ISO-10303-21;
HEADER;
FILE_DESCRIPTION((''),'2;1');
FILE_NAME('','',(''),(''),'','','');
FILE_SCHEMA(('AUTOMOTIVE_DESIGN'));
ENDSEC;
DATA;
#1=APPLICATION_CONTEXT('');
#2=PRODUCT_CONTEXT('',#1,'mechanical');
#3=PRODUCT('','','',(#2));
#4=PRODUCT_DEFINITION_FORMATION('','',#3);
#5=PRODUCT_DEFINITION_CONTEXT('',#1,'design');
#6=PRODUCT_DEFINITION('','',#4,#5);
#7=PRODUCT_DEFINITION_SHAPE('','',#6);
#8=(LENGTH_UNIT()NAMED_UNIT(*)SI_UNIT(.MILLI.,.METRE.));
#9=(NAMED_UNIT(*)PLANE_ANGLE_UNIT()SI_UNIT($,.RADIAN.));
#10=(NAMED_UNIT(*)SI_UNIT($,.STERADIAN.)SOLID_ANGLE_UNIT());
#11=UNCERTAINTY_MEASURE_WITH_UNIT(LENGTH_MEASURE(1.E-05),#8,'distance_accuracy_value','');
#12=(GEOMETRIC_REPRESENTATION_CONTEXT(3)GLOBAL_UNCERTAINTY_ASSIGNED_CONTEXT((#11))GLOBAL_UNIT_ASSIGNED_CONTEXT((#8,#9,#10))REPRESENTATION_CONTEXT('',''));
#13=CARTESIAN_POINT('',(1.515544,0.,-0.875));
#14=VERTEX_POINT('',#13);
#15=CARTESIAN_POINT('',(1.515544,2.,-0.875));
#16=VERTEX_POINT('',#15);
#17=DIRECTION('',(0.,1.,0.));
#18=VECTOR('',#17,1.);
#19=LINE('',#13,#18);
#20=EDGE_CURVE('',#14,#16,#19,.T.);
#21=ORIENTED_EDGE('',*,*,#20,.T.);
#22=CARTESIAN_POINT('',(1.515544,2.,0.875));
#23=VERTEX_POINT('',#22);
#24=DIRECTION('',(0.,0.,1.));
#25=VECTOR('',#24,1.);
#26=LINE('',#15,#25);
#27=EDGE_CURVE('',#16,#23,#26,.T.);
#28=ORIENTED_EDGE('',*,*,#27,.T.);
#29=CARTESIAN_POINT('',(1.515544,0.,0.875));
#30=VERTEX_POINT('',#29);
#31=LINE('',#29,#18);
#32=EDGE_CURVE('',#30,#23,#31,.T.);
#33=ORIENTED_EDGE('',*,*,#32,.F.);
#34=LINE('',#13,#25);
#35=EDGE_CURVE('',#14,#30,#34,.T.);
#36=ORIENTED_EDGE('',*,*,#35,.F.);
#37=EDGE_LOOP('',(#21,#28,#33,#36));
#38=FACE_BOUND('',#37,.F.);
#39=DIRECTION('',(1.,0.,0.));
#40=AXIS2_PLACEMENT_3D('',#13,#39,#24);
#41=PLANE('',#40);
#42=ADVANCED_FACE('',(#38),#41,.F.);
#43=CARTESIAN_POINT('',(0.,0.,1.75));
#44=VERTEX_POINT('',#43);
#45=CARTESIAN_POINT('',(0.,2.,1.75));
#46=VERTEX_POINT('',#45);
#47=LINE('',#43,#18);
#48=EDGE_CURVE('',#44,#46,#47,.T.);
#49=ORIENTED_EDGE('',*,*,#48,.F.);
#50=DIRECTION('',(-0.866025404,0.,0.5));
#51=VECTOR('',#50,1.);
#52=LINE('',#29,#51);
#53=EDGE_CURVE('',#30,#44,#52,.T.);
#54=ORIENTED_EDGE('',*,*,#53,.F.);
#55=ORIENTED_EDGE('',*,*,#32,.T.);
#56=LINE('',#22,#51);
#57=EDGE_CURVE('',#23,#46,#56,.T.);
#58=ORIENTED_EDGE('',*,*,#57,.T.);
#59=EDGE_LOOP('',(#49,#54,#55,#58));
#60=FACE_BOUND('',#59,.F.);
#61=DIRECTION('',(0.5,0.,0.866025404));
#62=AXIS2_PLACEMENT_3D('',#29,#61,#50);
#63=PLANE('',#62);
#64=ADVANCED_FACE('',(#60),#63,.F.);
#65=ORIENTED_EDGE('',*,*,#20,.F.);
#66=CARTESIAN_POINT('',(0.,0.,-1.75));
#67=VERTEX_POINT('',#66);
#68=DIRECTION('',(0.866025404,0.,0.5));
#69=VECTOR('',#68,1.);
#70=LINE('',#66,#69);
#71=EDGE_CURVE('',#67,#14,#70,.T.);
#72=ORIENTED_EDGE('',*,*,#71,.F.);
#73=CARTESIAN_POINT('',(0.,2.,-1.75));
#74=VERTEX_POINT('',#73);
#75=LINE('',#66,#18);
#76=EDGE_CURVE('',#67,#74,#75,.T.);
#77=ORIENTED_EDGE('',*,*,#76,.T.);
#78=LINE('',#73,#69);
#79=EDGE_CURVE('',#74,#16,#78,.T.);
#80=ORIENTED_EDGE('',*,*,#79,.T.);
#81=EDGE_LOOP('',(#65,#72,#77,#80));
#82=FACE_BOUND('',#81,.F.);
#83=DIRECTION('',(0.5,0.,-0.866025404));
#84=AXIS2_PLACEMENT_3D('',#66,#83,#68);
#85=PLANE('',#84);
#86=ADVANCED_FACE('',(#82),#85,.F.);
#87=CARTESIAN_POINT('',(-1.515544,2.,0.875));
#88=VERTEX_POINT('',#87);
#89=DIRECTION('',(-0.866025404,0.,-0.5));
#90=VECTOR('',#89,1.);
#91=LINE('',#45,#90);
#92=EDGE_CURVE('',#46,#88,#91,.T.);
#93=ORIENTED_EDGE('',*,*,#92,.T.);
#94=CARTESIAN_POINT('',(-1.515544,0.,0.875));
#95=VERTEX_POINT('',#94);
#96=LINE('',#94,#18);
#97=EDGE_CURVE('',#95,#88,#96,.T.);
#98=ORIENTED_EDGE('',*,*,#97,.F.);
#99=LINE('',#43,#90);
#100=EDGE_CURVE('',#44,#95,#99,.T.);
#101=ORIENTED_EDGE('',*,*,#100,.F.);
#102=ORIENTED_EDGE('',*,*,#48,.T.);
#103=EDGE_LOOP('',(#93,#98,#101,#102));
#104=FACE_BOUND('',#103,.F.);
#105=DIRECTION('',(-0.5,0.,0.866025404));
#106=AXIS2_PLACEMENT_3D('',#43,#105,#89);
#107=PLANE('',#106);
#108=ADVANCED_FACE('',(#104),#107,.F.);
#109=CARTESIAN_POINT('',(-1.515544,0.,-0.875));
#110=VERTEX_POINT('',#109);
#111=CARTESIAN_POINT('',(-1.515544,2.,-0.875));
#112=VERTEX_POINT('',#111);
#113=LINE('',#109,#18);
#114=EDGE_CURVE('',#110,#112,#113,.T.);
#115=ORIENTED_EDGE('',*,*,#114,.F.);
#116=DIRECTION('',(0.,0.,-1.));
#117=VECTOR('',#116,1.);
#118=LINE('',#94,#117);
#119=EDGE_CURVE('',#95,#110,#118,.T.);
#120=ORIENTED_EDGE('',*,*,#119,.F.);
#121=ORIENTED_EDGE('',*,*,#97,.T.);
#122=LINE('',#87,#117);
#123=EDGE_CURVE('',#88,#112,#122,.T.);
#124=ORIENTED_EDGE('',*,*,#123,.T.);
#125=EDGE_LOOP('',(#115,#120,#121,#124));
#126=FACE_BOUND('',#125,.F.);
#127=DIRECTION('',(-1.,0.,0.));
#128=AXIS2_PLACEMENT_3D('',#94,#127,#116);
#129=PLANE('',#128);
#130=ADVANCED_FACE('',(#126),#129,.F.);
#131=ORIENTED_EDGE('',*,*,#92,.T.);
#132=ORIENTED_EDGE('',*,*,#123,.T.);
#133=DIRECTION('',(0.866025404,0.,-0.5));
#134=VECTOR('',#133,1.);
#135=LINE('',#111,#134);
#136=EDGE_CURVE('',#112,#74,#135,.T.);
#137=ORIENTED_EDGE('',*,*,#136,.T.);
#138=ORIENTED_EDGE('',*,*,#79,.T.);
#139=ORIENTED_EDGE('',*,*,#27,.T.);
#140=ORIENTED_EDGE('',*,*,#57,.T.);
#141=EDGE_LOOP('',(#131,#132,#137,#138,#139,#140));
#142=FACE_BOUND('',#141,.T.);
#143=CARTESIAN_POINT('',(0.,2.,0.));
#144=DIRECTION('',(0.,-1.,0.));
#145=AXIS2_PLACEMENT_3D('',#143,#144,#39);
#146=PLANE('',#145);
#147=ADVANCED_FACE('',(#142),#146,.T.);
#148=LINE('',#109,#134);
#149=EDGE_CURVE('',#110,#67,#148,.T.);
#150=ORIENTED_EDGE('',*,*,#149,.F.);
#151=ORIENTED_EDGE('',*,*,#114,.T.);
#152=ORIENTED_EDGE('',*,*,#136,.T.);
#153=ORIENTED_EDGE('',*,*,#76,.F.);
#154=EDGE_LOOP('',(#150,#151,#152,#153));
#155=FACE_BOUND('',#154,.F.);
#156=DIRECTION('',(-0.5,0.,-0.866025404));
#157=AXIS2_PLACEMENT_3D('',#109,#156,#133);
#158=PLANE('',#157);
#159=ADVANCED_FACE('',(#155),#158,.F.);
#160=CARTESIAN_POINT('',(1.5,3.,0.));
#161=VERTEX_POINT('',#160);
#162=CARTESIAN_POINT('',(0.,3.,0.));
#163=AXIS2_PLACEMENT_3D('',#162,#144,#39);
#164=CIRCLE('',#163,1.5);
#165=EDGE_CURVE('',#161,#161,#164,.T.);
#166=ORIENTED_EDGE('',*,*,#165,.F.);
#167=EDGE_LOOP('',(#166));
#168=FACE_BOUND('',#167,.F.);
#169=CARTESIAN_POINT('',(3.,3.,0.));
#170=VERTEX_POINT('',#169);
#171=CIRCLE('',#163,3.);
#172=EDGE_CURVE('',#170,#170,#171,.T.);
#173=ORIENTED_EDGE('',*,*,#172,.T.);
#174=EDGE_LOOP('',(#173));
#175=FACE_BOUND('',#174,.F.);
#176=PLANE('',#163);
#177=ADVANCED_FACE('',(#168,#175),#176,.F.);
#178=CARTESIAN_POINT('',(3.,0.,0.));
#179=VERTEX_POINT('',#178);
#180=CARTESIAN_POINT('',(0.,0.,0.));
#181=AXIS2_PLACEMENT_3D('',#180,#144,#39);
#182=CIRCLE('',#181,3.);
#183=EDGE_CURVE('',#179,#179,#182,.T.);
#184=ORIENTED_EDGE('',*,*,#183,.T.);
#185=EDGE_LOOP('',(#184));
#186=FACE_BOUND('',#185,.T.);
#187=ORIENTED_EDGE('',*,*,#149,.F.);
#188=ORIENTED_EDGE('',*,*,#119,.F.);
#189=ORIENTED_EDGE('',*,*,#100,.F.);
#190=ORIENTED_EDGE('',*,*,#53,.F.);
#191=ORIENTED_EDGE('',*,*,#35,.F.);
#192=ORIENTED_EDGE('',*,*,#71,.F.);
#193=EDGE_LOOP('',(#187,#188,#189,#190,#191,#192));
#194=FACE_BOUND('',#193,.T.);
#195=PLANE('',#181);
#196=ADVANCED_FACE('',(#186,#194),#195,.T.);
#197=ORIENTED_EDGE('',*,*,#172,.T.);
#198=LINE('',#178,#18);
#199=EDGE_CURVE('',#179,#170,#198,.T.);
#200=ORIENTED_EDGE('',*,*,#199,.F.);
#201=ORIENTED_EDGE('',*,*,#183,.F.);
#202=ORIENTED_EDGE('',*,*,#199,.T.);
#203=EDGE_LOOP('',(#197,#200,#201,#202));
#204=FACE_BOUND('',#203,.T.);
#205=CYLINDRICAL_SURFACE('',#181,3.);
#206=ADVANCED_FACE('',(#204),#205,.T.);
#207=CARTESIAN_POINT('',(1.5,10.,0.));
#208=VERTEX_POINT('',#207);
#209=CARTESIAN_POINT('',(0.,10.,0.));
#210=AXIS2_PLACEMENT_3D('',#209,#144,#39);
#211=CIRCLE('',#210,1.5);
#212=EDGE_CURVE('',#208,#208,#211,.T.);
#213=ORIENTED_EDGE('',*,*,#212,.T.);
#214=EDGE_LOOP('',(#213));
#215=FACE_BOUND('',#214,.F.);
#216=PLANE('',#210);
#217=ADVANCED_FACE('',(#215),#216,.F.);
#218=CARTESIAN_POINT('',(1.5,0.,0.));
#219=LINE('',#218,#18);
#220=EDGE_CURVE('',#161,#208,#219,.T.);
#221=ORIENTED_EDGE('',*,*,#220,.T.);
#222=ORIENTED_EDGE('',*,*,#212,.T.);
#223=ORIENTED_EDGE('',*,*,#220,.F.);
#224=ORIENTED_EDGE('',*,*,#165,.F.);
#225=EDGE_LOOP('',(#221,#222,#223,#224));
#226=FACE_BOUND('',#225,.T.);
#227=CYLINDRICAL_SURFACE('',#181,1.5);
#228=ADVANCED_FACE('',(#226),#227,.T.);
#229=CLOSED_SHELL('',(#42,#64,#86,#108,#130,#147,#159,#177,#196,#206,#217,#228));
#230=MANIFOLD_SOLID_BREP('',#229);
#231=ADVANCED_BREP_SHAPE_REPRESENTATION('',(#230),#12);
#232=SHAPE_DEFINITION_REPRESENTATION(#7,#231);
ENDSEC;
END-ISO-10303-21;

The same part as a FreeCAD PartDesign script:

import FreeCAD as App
import Part
import Sketcher
Q = App.Units.Quantity


def add_polygon(sketch, points):
    """Adds a closed chain of lines whose ends are joined by coincident constraints."""
    first, n = sketch.GeometryCount, len(points)
    for a, b in zip(points, points[1:] + points[:1]):
        sketch.addGeometry(Part.LineSegment(App.Vector(*a, 0), App.Vector(*b, 0)), False)
    for i in range(n):
        sketch.addConstraint(Sketcher.Constraint("Coincident", first + i, 2, first + (i + 1) % n, 1))

doc = App.newDocument("Part")
body = doc.addObject("PartDesign::Body", "Body")

# Sketch on XZ plane
sketch1 = body.newObject("Sketcher::SketchObject", "Sketch")
sketch1.AttachmentSupport = (doc.getObject("XZ_Plane"), [""])
sketch1.MapMode = "FlatFace"
sketch1.addGeometry(Part.Circle(App.Vector(0, 0, 0), App.Vector(0, 0, 1), 1.5), False)
sketch1.addConstraint([
    Sketcher.Constraint("Coincident", 0, 3, -1, 1),
    Sketcher.Constraint("Diameter", 0, 3.0),
])
pad1 = body.newObject("PartDesign::Pad", "Pad")
pad1.Profile = sketch1
pad1.Length = 10
pad1.Reversed = True

# Sketch on XZ plane
sketch2 = body.newObject("Sketcher::SketchObject", "Sketch001")
sketch2.AttachmentSupport = (doc.getObject("XZ_Plane"), [""])
sketch2.MapMode = "FlatFace"
sketch2.addGeometry([
    Part.Circle(App.Vector(0, 0, 0), App.Vector(0, 0, 1), 3),
    Part.Circle(App.Vector(0, 0, 0), App.Vector(0, 0, 1), 1.5),
], False)
sketch2.addConstraint([
    Sketcher.Constraint("Coincident", 0, 3, -1, 1),
    Sketcher.Constraint("Coincident", 1, 3, -1, 1),
    Sketcher.Constraint("Diameter", 0, 6.0),
    Sketcher.Constraint("Diameter", 1, 3.0),
])
pad2 = body.newObject("PartDesign::Pad", "Pad001")
pad2.Profile = sketch2
pad2.Length = 3
pad2.Reversed = True

# Sketch on XZ plane
sketch3 = body.newObject("Sketcher::SketchObject", "Sketch002")
sketch3.AttachmentSupport = (doc.getObject("XZ_Plane"), [""])
sketch3.MapMode = "FlatFace"
add_polygon(sketch3, [(-1.5, -0.9), (0, -1.8), (1.5, -0.9), (1.5, 0.9), (0, 1.8), (-1.5, 0.9)])  # lines 0-5
sketch3.addConstraint([
    Sketcher.Constraint("Vertical", 2),
    Sketcher.Constraint("Vertical", 5),
    Sketcher.Constraint("Symmetric", 0, 2, 3, 2, -1, 1),
    Sketcher.Constraint("Symmetric", 1, 2, 4, 2, -1, 1),
    Sketcher.Constraint("PointOnObject", 0, 2, -2),
    Sketcher.Constraint("Parallel", 0, 3),
    Sketcher.Constraint("Horizontal", 2, 2, 4, 2),
    Sketcher.Constraint("Angle", 0, Q("-30 deg")),
    Sketcher.Constraint("DistanceY", 2, 1, 2, 2, 1.75),
    Sketcher.Constraint("DistanceY", 0, 2, 3, 2, 3.5),
])
pocket1 = body.newObject("PartDesign::Pocket", "Pocket")
pocket1.Profile = sketch3
pocket1.Length = 2

doc.recompute()
